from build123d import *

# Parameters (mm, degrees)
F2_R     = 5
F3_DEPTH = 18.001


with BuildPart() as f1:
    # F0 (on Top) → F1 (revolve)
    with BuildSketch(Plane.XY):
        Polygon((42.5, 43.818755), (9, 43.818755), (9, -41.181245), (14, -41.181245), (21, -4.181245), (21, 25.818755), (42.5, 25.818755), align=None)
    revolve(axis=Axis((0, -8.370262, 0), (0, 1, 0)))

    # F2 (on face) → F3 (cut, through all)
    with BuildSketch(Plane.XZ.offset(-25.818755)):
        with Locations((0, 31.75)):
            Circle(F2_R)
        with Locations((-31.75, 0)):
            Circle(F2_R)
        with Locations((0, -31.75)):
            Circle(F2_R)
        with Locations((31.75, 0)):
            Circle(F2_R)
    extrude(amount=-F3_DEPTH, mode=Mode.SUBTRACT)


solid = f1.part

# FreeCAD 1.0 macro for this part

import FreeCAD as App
import Part
import Sketcher

V = App.Vector


def add_polygon(sketch, points):
    """Adds a closed chain of lines whose ends are joined by coincident constraints."""
    first, n = sketch.GeometryCount, len(points)
    for a, b in zip(points, points[1:] + points[:1]):
        sketch.addGeometry(Part.LineSegment(App.Vector(*a, 0), App.Vector(*b, 0)), False)
    for i in range(n):
        sketch.addConstraint(Sketcher.Constraint("Coincident", first + i, 2, first + (i + 1) % n, 1))

doc = App.newDocument("Part")
body = doc.addObject("PartDesign::Body", "Body")

# Sketch on XY plane
sketch1 = doc.addObject("Sketcher::SketchObject", "Sketch")
body.addObject(sketch1)
sketch1.AttachmentSupport = (doc.XY_Plane, [""])
sketch1.MapMode = "FlatFace"
add_polygon(sketch1, [(42, 44), (9, 44), (9, -41), (14, -41), (21, -4), (21, 26), (42, 26)])  # lines 0-6
sketch1.addConstraint([
    Sketcher.Constraint("Horizontal", 0),
    Sketcher.Constraint("Vertical", 1),
    Sketcher.Constraint("Horizontal", 2),
    Sketcher.Constraint("Vertical", 4),
    Sketcher.Constraint("Horizontal", 5),
    Sketcher.Constraint("Vertical", 6),
    Sketcher.Constraint("DistanceX", 2, 1, 2, 2, 5.0),
    Sketcher.Constraint("DistanceY", 1, 2, 1, 1, 85.0),
    Sketcher.Constraint("DistanceY", 4, 1, 4, 2, 30.0),
    Sketcher.Constraint("DistanceY", 6, 1, 6, 2, 18.0),
    Sketcher.Constraint("DistanceX", 0, 2, 0, 1, 33.5),
    Sketcher.Constraint("DistanceX", 5, 1, 5, 2, 21.5),
    Sketcher.Constraint("DistanceX", -1, 1, 0, 2, 9.0),
    Sketcher.Constraint("DistanceY", -1, 1, 0, 2, 43.818755),
])
revolution = doc.addObject("PartDesign::Revolution", "Revolution")
body.addObject(revolution)
revolution.Profile = sketch1
revolution.ReferenceAxis = (sketch1, ["V_Axis"])
revolution.Angle = 360

# Sketch on XZ plane
sketch2 = doc.addObject("Sketcher::SketchObject", "Sketch001")
body.addObject(sketch2)
sketch2.AttachmentSupport = (doc.XZ_Plane, [""])
sketch2.MapMode = "FlatFace"
sketch2.AttachmentOffset = App.Placement(V(0, 0, -25.818755), App.Rotation())
sketch2.addGeometry([
    Part.Circle(V(0, 32, 0), V(0, 0, 1), 5),
    Part.Circle(V(-32, 0, 0), V(0, 0, 1), 5),
    Part.Circle(V(0, -32, 0), V(0, 0, 1), 5),
    Part.Circle(V(32, 0, 0), V(0, 0, 1), 5),
], False)
sketch2.addConstraint([
    Sketcher.Constraint("Equal", 0, 1),
    Sketcher.Constraint("Equal", 1, 2),
    Sketcher.Constraint("Equal", 2, 3),
    Sketcher.Constraint("Symmetric", 0, 3, 2, 3, -1, 1),
    Sketcher.Constraint("Symmetric", 1, 3, 3, 3, -1, 1),
    Sketcher.Constraint("PointOnObject", 0, 3, -2),
    Sketcher.Constraint("PointOnObject", 1, 3, -1),
    Sketcher.Constraint("Diameter", 0, 10.0),
    Sketcher.Constraint("DistanceY", 2, 3, 0, 3, 63.5),
    Sketcher.Constraint("DistanceX", 1, 3, 3, 3, 63.5),
])
pocket1 = doc.addObject("PartDesign::Pocket", "Pocket")
body.addObject(pocket1)
pocket1.Profile = sketch2
pocket1.Type = "ThroughAll"

doc.recompute()
